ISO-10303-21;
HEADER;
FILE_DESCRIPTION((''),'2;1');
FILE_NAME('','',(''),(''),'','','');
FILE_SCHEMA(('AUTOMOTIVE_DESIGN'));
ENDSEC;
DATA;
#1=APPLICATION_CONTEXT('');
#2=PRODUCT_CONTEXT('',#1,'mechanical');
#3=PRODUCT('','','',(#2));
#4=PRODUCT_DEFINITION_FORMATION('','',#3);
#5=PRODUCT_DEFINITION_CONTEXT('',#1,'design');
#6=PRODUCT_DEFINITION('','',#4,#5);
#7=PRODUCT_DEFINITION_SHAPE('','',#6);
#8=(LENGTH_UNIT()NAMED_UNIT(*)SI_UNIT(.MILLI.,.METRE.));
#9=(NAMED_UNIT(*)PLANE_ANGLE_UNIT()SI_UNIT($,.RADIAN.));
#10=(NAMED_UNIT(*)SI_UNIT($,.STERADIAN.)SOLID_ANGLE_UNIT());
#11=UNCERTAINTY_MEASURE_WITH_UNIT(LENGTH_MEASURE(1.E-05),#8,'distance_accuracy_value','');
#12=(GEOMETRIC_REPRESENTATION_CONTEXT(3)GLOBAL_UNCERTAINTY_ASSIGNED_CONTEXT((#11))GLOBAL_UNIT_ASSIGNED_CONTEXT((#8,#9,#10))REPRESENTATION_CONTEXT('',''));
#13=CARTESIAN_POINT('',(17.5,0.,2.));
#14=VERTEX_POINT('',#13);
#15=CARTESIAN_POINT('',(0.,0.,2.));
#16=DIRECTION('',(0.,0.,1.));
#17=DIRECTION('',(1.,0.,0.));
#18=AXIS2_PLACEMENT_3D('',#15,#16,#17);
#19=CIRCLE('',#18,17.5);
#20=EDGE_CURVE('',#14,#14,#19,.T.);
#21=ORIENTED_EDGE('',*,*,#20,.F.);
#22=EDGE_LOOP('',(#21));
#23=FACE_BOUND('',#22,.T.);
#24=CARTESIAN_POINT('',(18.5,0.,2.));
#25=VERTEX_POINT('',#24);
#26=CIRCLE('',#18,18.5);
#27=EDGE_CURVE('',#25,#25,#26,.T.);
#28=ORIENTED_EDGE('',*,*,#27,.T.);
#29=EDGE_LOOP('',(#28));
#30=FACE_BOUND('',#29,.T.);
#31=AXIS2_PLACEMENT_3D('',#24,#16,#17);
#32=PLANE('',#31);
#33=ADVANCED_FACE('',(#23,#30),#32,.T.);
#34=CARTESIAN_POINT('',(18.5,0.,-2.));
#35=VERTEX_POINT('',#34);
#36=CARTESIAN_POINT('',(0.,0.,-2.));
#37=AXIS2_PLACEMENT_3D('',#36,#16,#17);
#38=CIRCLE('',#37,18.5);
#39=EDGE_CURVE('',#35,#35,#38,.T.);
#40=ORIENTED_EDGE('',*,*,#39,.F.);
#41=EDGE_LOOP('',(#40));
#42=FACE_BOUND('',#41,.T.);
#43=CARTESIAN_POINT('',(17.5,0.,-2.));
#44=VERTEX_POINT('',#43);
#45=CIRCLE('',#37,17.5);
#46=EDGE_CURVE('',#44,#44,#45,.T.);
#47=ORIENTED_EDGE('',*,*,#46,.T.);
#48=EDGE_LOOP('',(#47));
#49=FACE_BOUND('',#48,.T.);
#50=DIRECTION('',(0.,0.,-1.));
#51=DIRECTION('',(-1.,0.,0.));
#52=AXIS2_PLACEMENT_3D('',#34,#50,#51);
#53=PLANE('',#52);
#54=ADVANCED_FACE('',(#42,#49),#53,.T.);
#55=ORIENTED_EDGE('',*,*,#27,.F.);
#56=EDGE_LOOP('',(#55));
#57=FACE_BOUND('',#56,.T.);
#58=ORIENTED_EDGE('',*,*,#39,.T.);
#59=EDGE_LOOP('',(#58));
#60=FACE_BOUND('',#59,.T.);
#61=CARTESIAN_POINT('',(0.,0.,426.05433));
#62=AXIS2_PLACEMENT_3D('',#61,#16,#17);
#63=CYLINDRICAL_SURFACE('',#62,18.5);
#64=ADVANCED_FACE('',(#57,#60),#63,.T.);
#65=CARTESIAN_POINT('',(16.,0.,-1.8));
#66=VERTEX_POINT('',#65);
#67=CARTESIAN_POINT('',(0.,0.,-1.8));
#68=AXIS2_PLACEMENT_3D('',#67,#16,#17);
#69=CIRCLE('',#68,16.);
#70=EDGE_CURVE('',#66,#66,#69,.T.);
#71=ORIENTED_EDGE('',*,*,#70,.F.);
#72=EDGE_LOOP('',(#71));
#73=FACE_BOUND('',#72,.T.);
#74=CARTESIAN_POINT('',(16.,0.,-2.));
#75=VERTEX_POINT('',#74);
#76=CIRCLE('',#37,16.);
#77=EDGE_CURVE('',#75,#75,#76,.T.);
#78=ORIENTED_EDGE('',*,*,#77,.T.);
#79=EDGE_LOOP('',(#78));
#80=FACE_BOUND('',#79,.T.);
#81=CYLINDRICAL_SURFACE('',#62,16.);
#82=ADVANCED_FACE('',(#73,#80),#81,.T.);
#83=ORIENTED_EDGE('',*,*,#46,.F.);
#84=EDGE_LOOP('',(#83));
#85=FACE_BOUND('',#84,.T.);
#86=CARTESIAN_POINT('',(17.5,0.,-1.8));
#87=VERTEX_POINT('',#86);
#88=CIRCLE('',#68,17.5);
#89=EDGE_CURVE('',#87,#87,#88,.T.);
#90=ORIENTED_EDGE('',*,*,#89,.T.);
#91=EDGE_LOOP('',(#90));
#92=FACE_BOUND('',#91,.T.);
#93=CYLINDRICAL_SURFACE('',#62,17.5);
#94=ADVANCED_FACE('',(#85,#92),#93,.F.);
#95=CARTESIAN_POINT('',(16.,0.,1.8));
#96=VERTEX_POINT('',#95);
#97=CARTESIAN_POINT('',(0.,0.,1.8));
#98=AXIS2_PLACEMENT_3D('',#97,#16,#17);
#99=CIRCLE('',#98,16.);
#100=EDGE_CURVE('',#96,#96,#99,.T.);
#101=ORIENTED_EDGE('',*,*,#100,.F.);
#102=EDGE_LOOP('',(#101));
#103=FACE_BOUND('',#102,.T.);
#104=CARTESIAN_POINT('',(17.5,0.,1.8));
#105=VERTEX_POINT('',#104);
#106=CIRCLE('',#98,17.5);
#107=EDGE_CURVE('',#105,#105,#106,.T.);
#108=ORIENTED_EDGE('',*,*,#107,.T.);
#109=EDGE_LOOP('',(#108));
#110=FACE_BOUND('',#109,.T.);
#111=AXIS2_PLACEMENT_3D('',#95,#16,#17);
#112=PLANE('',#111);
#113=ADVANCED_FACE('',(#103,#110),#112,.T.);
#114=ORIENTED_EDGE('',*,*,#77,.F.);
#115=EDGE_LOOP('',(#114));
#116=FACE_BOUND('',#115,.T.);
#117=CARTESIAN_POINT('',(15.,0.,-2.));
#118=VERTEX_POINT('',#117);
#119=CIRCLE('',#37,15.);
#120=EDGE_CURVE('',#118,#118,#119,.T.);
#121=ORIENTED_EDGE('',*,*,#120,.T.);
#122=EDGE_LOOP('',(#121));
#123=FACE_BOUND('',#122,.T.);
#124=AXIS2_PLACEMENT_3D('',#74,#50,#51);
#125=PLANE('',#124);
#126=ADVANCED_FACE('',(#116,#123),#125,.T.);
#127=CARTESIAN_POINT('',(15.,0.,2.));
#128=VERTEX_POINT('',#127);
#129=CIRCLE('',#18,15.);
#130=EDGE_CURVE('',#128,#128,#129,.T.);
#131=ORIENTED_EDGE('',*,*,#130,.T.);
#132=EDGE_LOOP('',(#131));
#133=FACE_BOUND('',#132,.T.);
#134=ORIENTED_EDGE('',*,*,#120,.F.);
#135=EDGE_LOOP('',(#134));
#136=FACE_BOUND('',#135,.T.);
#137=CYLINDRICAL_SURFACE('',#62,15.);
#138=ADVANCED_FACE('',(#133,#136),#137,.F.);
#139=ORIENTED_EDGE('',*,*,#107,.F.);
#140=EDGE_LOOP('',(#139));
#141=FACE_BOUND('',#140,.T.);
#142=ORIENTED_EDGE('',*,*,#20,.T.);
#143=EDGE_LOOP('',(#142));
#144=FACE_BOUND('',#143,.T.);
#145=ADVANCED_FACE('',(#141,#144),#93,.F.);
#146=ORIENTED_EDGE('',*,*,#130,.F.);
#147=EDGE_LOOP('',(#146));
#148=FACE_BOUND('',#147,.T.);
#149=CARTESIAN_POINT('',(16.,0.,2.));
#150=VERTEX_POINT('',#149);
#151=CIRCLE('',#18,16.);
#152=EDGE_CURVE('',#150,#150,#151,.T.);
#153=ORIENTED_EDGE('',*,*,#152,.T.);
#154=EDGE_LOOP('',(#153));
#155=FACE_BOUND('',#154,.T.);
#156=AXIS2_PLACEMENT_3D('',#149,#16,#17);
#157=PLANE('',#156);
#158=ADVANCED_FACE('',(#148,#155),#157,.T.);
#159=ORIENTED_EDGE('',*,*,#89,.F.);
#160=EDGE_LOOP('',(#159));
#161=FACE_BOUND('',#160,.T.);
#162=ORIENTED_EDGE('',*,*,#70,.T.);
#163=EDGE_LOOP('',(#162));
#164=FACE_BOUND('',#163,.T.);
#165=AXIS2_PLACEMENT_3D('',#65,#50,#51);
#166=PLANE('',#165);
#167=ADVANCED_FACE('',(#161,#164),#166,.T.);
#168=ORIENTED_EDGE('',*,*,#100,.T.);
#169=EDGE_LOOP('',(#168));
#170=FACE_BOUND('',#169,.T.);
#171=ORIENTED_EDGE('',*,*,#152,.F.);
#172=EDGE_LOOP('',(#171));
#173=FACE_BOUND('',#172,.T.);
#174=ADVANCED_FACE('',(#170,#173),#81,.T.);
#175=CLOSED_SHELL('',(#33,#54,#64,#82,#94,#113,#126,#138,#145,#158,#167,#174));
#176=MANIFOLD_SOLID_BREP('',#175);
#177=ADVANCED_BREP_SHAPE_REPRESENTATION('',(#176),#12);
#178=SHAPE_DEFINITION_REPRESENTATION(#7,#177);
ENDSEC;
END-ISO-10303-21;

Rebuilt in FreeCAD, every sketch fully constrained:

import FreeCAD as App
import Part
import Sketcher

V = App.Vector
Q = App.Units.Quantity


def add_polygon(sketch, points):
    """Adds a closed chain of lines whose ends are joined by coincident constraints."""
    first, n = sketch.GeometryCount, len(points)
    for a, b in zip(points, points[1:] + points[:1]):
        sketch.addGeometry(Part.LineSegment(App.Vector(*a, 0), App.Vector(*b, 0)), False)
    for i in range(n):
        sketch.addConstraint(Sketcher.Constraint("Coincident", first + i, 2, first + (i + 1) % n, 1))

doc = App.newDocument("Part")
body = doc.addObject("PartDesign::Body", "Body")

# Sketch on XZ plane
sketch1 = doc.addObject("Sketcher::SketchObject", "Sketch")
body.addObject(sketch1)
sketch1.AttachmentSupport = (doc.XZ_Plane, [""])
sketch1.MapMode = "FlatFace"
add_polygon(sketch1, [(16, -1.8), (16, -2), (15, -2), (15, 2), (16, 2), (16, 1.8), (17.5, 1.8), (17.5, 2), (18.5, 2), (18.5, -2), (17.5, -2), (17.5, -1.8)])  # lines 0-11
sketch1.addConstraint(Sketcher.Constraint("Vertical", 0))
sketch1.addConstraint(Sketcher.Constraint("Horizontal", 1))
sketch1.addConstraint(Sketcher.Constraint("Vertical", 2))
sketch1.addConstraint(Sketcher.Constraint("Horizontal", 3))
sketch1.addConstraint(Sketcher.Constraint("Vertical", 4))
sketch1.addConstraint(Sketcher.Constraint("Horizontal", 5))
sketch1.addConstraint(Sketcher.Constraint("Vertical", 6))
sketch1.addConstraint(Sketcher.Constraint("Horizontal", 7))
sketch1.addConstraint(Sketcher.Constraint("Vertical", 8))
sketch1.addConstraint(Sketcher.Constraint("Horizontal", 9))
sketch1.addConstraint(Sketcher.Constraint("Vertical", 10))
sketch1.addConstraint(Sketcher.Constraint("Horizontal", 11))
sketch1.addConstraint(Sketcher.Constraint("Symmetric", 0, 2, 3, 2, -1))
sketch1.addConstraint(Sketcher.Constraint("Symmetric", 6, 2, 9, 2, -1))
sketch1.addConstraint(Sketcher.Constraint("Horizontal", 3, 2, 6, 2))
sketch1.addConstraint(Sketcher.Constraint("Equal", 3, 7))
sketch1.addConstraint(Sketcher.Constraint("Equal", 0, 4))
sketch1.addConstraint(Sketcher.Constraint("DistanceX", 1, 2, 1, 1, Q("1 mm")))
sketch1.addConstraint(Sketcher.Constraint("DistanceY", 2, 1, 2, 2, Q("4 mm")))
sketch1.addConstraint(Sketcher.Constraint("DistanceX", 5, 1, 5, 2, Q("1.5 mm")))
sketch1.addConstraint(Sketcher.Constraint("DistanceY", 0, 2, 0, 1, Q("0.2 mm")))
sketch1.addConstraint(Sketcher.Constraint("DistanceX", -1, 1, 0, 2, Q("16 mm")))
revolution = doc.addObject("PartDesign::Revolution", "Revolution")
body.addObject(revolution)
revolution.Profile = sketch1
revolution.ReferenceAxis = (sketch1, ["V_Axis"])
revolution.Angle = 360

doc.recompute()
